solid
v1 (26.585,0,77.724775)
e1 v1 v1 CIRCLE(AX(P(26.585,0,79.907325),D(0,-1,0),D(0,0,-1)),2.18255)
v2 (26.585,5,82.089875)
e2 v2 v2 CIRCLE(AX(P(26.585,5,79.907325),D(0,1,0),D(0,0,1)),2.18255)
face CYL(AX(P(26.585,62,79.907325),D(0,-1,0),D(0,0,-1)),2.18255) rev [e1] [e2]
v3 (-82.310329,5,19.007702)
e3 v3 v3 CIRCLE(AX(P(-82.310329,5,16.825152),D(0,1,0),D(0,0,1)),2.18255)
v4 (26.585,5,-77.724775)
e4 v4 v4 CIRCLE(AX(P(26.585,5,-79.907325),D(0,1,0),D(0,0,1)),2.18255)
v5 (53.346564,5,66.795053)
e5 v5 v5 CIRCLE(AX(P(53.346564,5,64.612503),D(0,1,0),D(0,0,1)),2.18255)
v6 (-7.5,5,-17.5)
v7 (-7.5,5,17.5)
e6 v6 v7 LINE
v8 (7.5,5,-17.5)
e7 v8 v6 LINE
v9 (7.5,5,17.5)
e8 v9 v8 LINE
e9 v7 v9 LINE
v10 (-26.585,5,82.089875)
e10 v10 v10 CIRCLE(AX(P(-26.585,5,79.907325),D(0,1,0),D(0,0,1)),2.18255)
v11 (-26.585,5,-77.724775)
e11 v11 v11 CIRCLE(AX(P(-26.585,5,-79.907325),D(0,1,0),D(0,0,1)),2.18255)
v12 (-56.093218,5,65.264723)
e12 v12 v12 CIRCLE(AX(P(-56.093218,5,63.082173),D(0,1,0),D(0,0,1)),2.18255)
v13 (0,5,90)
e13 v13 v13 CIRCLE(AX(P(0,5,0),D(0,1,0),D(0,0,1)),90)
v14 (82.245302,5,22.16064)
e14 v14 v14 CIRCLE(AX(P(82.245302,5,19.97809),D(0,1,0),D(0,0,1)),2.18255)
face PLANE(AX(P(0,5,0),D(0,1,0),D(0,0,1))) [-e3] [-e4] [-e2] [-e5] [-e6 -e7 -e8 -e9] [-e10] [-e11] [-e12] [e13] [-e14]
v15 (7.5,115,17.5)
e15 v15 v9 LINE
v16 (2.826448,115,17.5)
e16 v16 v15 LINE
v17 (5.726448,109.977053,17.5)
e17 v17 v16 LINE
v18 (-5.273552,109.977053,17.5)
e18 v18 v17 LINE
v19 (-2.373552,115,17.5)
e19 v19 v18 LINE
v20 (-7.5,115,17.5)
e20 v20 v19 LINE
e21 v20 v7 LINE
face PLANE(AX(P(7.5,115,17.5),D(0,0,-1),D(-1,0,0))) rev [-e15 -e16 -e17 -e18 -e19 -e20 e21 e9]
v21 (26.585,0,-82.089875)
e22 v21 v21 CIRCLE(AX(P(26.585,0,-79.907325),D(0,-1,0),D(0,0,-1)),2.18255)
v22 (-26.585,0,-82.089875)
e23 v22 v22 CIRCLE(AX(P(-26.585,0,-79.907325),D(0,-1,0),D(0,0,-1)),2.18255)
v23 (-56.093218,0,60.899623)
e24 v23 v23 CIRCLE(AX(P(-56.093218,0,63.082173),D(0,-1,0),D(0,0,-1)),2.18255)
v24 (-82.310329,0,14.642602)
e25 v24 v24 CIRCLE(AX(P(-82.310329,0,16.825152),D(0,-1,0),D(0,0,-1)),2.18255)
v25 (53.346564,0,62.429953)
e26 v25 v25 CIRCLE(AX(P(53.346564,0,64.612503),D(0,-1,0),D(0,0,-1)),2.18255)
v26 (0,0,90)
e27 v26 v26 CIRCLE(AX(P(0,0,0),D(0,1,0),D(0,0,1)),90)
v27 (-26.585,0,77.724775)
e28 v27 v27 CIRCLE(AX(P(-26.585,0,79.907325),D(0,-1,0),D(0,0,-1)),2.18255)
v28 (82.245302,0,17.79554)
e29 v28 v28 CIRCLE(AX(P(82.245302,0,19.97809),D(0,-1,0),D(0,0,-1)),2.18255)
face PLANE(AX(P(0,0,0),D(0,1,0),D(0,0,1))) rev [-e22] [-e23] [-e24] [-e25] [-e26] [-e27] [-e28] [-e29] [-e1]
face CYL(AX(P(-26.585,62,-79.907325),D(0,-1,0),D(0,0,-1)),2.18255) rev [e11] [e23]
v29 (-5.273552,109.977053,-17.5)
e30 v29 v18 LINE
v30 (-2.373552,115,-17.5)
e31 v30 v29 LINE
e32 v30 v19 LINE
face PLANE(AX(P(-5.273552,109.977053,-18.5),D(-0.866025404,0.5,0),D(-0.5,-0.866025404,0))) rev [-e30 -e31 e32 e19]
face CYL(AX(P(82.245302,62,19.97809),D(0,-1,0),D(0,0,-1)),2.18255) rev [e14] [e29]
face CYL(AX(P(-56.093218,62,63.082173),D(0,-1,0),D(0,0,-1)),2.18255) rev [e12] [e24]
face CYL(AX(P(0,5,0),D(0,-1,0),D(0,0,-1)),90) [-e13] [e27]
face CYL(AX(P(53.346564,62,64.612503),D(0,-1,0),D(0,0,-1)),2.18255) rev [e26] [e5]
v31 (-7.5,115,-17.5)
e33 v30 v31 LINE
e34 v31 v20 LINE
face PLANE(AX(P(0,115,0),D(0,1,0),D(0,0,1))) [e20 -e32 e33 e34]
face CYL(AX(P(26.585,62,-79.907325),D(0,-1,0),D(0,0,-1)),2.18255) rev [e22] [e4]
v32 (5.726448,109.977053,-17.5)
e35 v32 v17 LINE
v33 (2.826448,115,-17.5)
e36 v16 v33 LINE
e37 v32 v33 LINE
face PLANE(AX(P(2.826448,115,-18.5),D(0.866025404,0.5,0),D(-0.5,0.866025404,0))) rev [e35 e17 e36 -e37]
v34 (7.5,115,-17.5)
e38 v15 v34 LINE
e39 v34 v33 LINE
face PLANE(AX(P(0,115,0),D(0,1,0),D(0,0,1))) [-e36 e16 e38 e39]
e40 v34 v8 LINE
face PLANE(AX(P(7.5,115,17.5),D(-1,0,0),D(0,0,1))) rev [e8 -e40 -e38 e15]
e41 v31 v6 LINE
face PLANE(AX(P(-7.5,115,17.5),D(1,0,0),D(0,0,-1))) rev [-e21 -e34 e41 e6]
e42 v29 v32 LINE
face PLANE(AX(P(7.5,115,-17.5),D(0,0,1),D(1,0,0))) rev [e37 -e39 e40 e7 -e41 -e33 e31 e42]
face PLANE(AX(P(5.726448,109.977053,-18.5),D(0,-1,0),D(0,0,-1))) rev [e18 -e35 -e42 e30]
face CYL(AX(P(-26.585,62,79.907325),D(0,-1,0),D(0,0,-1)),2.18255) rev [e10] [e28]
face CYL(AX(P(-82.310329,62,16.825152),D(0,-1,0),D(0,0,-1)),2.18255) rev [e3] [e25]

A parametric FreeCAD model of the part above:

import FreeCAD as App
import Part
import Sketcher
Q = App.Units.Quantity

doc = App.newDocument("Part")
body = doc.addObject("PartDesign::Body", "Body")

# Sketch on XZ plane
sketch1 = doc.addObject("Sketcher::SketchObject", "Sketch")
body.addObject(sketch1)
sketch1.AttachmentSupport = (doc.XZ_Plane, [""])
sketch1.MapMode = "FlatFace"
sketch1.addGeometry(Part.Circle(App.Vector(0, 0, 0), App.Vector(0, 0, 1), 90), False)
sketch1.addConstraint(Sketcher.Constraint("Coincident", 0, 3, -1, 1))
sketch1.addConstraint(Sketcher.Constraint("Diameter", 0, Q("180 mm")))
pad1 = doc.addObject("PartDesign::Pad", "Pad")
body.addObject(pad1)
pad1.Profile = sketch1
pad1.Length = 5
pad1.Reversed = True

# Sketch on XZ plane
sketch2 = doc.addObject("Sketcher::SketchObject", "Sketch001")
body.addObject(sketch2)
sketch2.AttachmentSupport = (doc.XZ_Plane, [""])
sketch2.MapMode = "FlatFace"
sketch2.AttachmentOffset = App.Placement(App.Vector(0, 0, -5), App.Rotation())
sketch2.addGeometry(Part.LineSegment(App.Vector(-7.5, -17.5, 0), App.Vector(-7.5, 17.5, 0)), False)
sketch2.addGeometry(Part.LineSegment(App.Vector(-7.5, 17.5, 0), App.Vector(7.5, 17.5, 0)), False)
sketch2.addGeometry(Part.LineSegment(App.Vector(7.5, 17.5, 0), App.Vector(7.5, -17.5, 0)), False)
sketch2.addGeometry(Part.LineSegment(App.Vector(7.5, -17.5, 0), App.Vector(-7.5, -17.5, 0)), False)
sketch2.addConstraint(Sketcher.Constraint("Coincident", 0, 2, 1, 1))
sketch2.addConstraint(Sketcher.Constraint("Coincident", 1, 2, 2, 1))
sketch2.addConstraint(Sketcher.Constraint("Coincident", 2, 2, 3, 1))
sketch2.addConstraint(Sketcher.Constraint("Coincident", 3, 2, 0, 1))
sketch2.addConstraint(Sketcher.Constraint("Vertical", 0))
sketch2.addConstraint(Sketcher.Constraint("Horizontal", 1))
sketch2.addConstraint(Sketcher.Constraint("Vertical", 2))
sketch2.addConstraint(Sketcher.Constraint("Horizontal", 3))
sketch2.addConstraint(Sketcher.Constraint("Symmetric", 0, 2, 2, 2, -1, 1))
sketch2.addConstraint(Sketcher.Constraint("DistanceX", 1, 1, 1, 2, Q("15 mm")))
sketch2.addConstraint(Sketcher.Constraint("DistanceY", 0, 1, 0, 2, Q("35 mm")))
pad2 = doc.addObject("PartDesign::Pad", "Pad001")
body.addObject(pad2)
pad2.Profile = sketch2
pad2.Length = 110
pad2.Reversed = True

# Sketch on XY plane
sketch3 = doc.addObject("Sketcher::SketchObject", "Sketch002")
body.addObject(sketch3)
sketch3.AttachmentSupport = (doc.XY_Plane, [""])
sketch3.MapMode = "FlatFace"
sketch3.AttachmentOffset = App.Placement(App.Vector(0, 0, 17.5), App.Rotation())
sketch3.addGeometry(Part.LineSegment(App.Vector(2.826448, 115, 0), App.Vector(-2.373552, 115, 0)), False)
sketch3.addGeometry(Part.LineSegment(App.Vector(-2.373552, 115, 0), App.Vector(-5.273552, 109.977053, 0)), False)
sketch3.addGeometry(Part.LineSegment(App.Vector(-5.273552, 109.977053, 0), App.Vector(5.726448, 109.977053, 0)), False)
sketch3.addGeometry(Part.LineSegment(App.Vector(5.726448, 109.977053, 0), App.Vector(2.826448, 115, 0)), False)
sketch3.addConstraint(Sketcher.Constraint("Coincident", 0, 2, 1, 1))
sketch3.addConstraint(Sketcher.Constraint("Coincident", 1, 2, 2, 1))
sketch3.addConstraint(Sketcher.Constraint("Coincident", 2, 2, 3, 1))
sketch3.addConstraint(Sketcher.Constraint("Coincident", 3, 2, 0, 1))
sketch3.addConstraint(Sketcher.Constraint("Horizontal", 0))
sketch3.addConstraint(Sketcher.Constraint("Horizontal", 2))
sketch3.addConstraint(Sketcher.Constraint("Equal", 1, 3))
sketch3.addConstraint(Sketcher.Constraint("DistanceX", 2, 1, 2, 2, Q("11 mm")))
sketch3.addConstraint(Sketcher.Constraint("Angle", 1, Q("-120 deg")))
sketch3.addConstraint(Sketcher.Constraint("DistanceX", 0, 2, 0, 1, Q("5.2 mm")))
sketch3.addConstraint(Sketcher.Constraint("DistanceY", -1, 1, 0, 2, Q("115 mm")))
sketch3.addConstraint(Sketcher.Constraint("DistanceX", 0, 2, -1, 1, Q("2.373552 mm")))
pocket1 = doc.addObject("PartDesign::Pocket", "Pocket")
body.addObject(pocket1)
pocket1.Profile = sketch3
pocket1.Length = 36

# Sketch on XZ plane
sketch4 = doc.addObject("Sketcher::SketchObject", "Sketch003")
body.addObject(sketch4)
sketch4.AttachmentSupport = (doc.XZ_Plane, [""])
sketch4.MapMode = "FlatFace"
sketch4.addGeometry(Part.Circle(App.Vector(26.585, -79.907325, 0), App.Vector(0, 0, 1), 2.18255), False)
sketch4.addGeometry(Part.Circle(App.Vector(-26.585, -79.907325, 0), App.Vector(0, 0, 1), 2.18255), False)
sketch4.addGeometry(Part.Circle(App.Vector(-82.310329, 16.825152, 0), App.Vector(0, 0, 1), 2.18255), False)
sketch4.addGeometry(Part.Circle(App.Vector(-56.093218, 63.082173, 0), App.Vector(0, 0, 1), 2.18255), False)
sketch4.addGeometry(Part.Circle(App.Vector(-26.585, 79.907325, 0), App.Vector(0, 0, 1), 2.18255), False)
sketch4.addGeometry(Part.Circle(App.Vector(26.585, 79.907325, 0), App.Vector(0, 0, 1), 2.18255), False)
sketch4.addGeometry(Part.Circle(App.Vector(53.346564, 64.612503, 0), App.Vector(0, 0, 1), 2.18255), False)
sketch4.addGeometry(Part.Circle(App.Vector(82.245302, 19.97809, 0), App.Vector(0, 0, 1), 2.18255), False)
sketch4.addConstraint(Sketcher.Constraint("Equal", 0, 1))
sketch4.addConstraint(Sketcher.Constraint("Equal", 1, 2))
sketch4.addConstraint(Sketcher.Constraint("Equal", 2, 3))
sketch4.addConstraint(Sketcher.Constraint("Equal", 3, 4))
sketch4.addConstraint(Sketcher.Constraint("Equal", 4, 5))
sketch4.addConstraint(Sketcher.Constraint("Equal", 5, 6))
sketch4.addConstraint(Sketcher.Constraint("Equal", 6, 7))
sketch4.addConstraint(Sketcher.Constraint("Symmetric", 0, 3, 4, 3, -1, 1))
sketch4.addConstraint(Sketcher.Constraint("Symmetric", 1, 3, 5, 3, -1, 1))
sketch4.addConstraint(Sketcher.Constraint("Symmetric", 0, 3, 1, 3, -2))
sketch4.addConstraint(Sketcher.Constraint("Diameter", 0, Q("4.3651 mm")))
sketch4.addConstraint(Sketcher.Constraint("DistanceX", 1, 3, 0, 3, Q("53.17 mm")))
sketch4.addConstraint(Sketcher.Constraint("DistanceY", 1, 3, 3, 3, Q("142.989498 mm")))
sketch4.addConstraint(Sketcher.Constraint("DistanceX", 2, 3, -1, 1, Q("82.310329 mm")))
sketch4.addConstraint(Sketcher.Constraint("DistanceX", 3, 3, -1, 1, Q("56.093218 mm")))
sketch4.addConstraint(Sketcher.Constraint("DistanceY", -1, 1, 7, 3, Q("19.97809 mm")))
sketch4.addConstraint(Sketcher.Constraint("DistanceY", 2, 3, 3, 3, Q("46.257021 mm")))
sketch4.addConstraint(Sketcher.Constraint("DistanceY", 1, 3, 4, 3, Q("159.814651 mm")))
sketch4.addConstraint(Sketcher.Constraint("DistanceX", 3, 3, 6, 3, Q("109.439782 mm")))
sketch4.addConstraint(Sketcher.Constraint("DistanceY", 3, 3, 6, 3, Q("1.53033 mm")))
sketch4.addConstraint(Sketcher.Constraint("DistanceX", 6, 3, 7, 3, Q("28.898738 mm")))
pocket2 = doc.addObject("PartDesign::Pocket", "Pocket001")
body.addObject(pocket2)
pocket2.Profile = sketch4
pocket2.Length = 62

doc.recompute()
